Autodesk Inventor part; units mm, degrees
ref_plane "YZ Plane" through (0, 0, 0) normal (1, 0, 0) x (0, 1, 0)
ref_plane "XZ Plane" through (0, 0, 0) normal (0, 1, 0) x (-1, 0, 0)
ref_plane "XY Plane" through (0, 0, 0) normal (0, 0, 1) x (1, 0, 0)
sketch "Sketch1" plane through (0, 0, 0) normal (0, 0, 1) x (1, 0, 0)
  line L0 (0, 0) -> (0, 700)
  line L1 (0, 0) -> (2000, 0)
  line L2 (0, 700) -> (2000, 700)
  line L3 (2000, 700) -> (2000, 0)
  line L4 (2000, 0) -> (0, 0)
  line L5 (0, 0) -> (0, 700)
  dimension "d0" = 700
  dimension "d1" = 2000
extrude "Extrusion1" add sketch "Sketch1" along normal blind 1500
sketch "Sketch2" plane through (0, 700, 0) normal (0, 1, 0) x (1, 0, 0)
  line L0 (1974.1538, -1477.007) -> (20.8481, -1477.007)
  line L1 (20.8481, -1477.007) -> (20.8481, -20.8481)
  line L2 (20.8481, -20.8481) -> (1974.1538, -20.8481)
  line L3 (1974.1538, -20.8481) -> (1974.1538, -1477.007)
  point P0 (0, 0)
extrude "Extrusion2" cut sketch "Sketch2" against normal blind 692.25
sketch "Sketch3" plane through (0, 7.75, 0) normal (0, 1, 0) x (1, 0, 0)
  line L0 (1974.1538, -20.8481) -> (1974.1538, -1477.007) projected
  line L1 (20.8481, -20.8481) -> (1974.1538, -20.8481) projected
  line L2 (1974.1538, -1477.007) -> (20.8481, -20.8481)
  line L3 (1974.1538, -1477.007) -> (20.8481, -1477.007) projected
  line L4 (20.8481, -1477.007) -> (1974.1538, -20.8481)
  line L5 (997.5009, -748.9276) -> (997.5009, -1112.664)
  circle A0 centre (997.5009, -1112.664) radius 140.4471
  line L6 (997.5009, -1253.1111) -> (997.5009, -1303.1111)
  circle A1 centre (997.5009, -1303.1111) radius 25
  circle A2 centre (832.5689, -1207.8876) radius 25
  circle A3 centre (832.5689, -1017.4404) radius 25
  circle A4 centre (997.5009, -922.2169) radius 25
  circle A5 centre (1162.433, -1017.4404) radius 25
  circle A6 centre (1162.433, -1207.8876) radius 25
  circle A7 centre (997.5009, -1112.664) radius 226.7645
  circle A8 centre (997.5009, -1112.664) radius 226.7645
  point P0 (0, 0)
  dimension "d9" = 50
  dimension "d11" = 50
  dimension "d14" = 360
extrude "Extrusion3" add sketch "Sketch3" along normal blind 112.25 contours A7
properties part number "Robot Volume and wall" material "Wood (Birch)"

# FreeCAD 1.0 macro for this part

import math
import FreeCAD as App
import Part
import Sketcher
from FreeCAD import Vector
Q = App.Units.Quantity

doc = App.newDocument("Part")
params = doc.addObject("Spreadsheet::Sheet", "Params")
for row, (alias, value) in enumerate([
    ("sketch1_width", "2000 mm"),
    ("sketch1_height", "700 mm"),
    ("pad1_length", "1500 mm"),
    ("pocket1_length", "692.25 mm"),
    ("sketch3_diameter", "50 mm"),
    ("pad2_length", "112.25 mm"),
], start=1):
    params.set(f"A{row}", alias)
    params.set(f"B{row}", "=" + value)
    params.setAlias(f"B{row}", alias)

body = doc.addObject("PartDesign::Body", "Body")

# Sketch on XY plane
sketch1 = doc.addObject("Sketcher::SketchObject", "Sketch")
body.addObject(sketch1)
sketch1.AttachmentSupport = (doc.XY_Plane, [""])
sketch1.MapMode = "FlatFace"
sketch1.addGeometry([
    Part.LineSegment(Vector(0, 700, 0), Vector(0, 0, 0)),
    Part.LineSegment(Vector(0, 0, 0), Vector(2000, 0, 0)),
    Part.LineSegment(Vector(2000, 0, 0), Vector(2000, 700, 0)),
    Part.LineSegment(Vector(2000, 700, 0), Vector(0, 700, 0)),
], False)
sketch1.addConstraint([
    Sketcher.Constraint("Coincident", 0, 2, 1, 1),
    Sketcher.Constraint("Coincident", 1, 2, 2, 1),
    Sketcher.Constraint("Coincident", 2, 2, 3, 1),
    Sketcher.Constraint("Coincident", 3, 2, 0, 1),
    Sketcher.Constraint("Vertical", 0),
    Sketcher.Constraint("Horizontal", 1),
    Sketcher.Constraint("Vertical", 2),
    Sketcher.Constraint("Horizontal", 3),
    Sketcher.Constraint("Coincident", 0, 2, -1, 1),
    Sketcher.Constraint("DistanceX", 1, 1, 1, 2, Q("2000 mm")),
    Sketcher.Constraint("DistanceY", 0, 2, 0, 1, Q("700 mm")),
])
sketch1.setExpression("Constraints[9]", "Params.sketch1_width")
sketch1.setExpression("Constraints[10]", "Params.sketch1_height")
pad1 = doc.addObject("PartDesign::Pad", "Pad")
body.addObject(pad1)
pad1.Profile = sketch1
pad1.setExpression("Length", "Params.pad1_length")

# Sketch on XZ plane
sketch2 = doc.addObject("Sketcher::SketchObject", "Sketch001")
body.addObject(sketch2)
sketch2.AttachmentSupport = (doc.XZ_Plane, [""])
sketch2.MapMode = "FlatFace"
sketch2.AttachmentOffset = App.Placement(Vector(0, 0, -700), App.Rotation())
sketch2.addGeometry([
    Part.LineSegment(Vector(21, 1477, 0), Vector(1974, 1477, 0)),
    Part.LineSegment(Vector(1974, 1477, 0), Vector(1974, 21, 0)),
    Part.LineSegment(Vector(1974, 21, 0), Vector(21, 21, 0)),
    Part.LineSegment(Vector(21, 21, 0), Vector(21, 1477, 0)),
], False)
sketch2.addConstraint([
    Sketcher.Constraint("Coincident", 0, 2, 1, 1),
    Sketcher.Constraint("Coincident", 1, 2, 2, 1),
    Sketcher.Constraint("Coincident", 2, 2, 3, 1),
    Sketcher.Constraint("Coincident", 3, 2, 0, 1),
    Sketcher.Constraint("Horizontal", 0),
    Sketcher.Constraint("Vertical", 1),
    Sketcher.Constraint("Horizontal", 2),
    Sketcher.Constraint("Vertical", 3),
    Sketcher.Constraint("DistanceY", 1, 2, 1, 1, Q("1456.159 mm")),
    Sketcher.Constraint("DistanceX", 0, 1, 0, 2, Q("1953.3057 mm")),
    Sketcher.Constraint("DistanceY", -1, 1, 0, 2, Q("1477.007 mm")),
    Sketcher.Constraint("DistanceX", -1, 1, 2, 2, Q("20.848 mm")),
])
pocket1 = doc.addObject("PartDesign::Pocket", "Pocket")
body.addObject(pocket1)
pocket1.Profile = sketch2
pocket1.setExpression("Length", "Params.pocket1_length")
pocket1.Reversed = True

# Sketch on XZ plane
sketch3 = doc.addObject("Sketcher::SketchObject", "Sketch002")
body.addObject(sketch3)
sketch3.AttachmentSupport = (doc.XZ_Plane, [""])
sketch3.MapMode = "FlatFace"
sketch3.AttachmentOffset = App.Placement(Vector(0, 0, -7.75), App.Rotation())
sketch3.addGeometry([
    Part.Circle(Vector(998, 1113, 0), Vector(0, 0, 1), 227),  # 0
    Part.Circle(Vector(998, 1303, 0), Vector(0, 0, 1), 25),  # 1
    Part.Circle(Vector(833, 1208, 0), Vector(0, 0, 1), 25),  # 2
    Part.ArcOfCircle(Part.Circle(Vector(998, 1113, 0), Vector(0, 0, 1), 140), math.radians(90), math.radians(270)),  # 3
    Part.ArcOfCircle(Part.Circle(Vector(998, 1113, 0), Vector(0, 0, 1), 140), math.radians(-90), math.radians(90)),  # 4
    Part.Circle(Vector(833, 1017, 0), Vector(0, 0, 1), 25),  # 5
    Part.ArcOfCircle(Part.Circle(Vector(998, 922, 0), Vector(0, 0, 1), 25), math.radians(90), math.radians(270)),  # 6
    Part.ArcOfCircle(Part.Circle(Vector(998, 922, 0), Vector(0, 0, 1), 25), math.radians(-90), math.radians(90)),  # 7
    Part.Circle(Vector(1162, 1208, 0), Vector(0, 0, 1), 25),  # 8
    Part.Circle(Vector(1162, 1017, 0), Vector(0, 0, 1), 25),  # 9
], False)
sketch3.addConstraint([
    Sketcher.Constraint("Tangent", 3, 1, 4, 2),
    Sketcher.Constraint("Coincident", 4, 1, 3, 2),
    Sketcher.Constraint("Tangent", 6, 1, 7, 2),
    Sketcher.Constraint("Coincident", 7, 1, 6, 2),
    Sketcher.Constraint("Coincident", 3, 3, 0, 3),
    Sketcher.Constraint("Equal", 1, 2),
    Sketcher.Constraint("Equal", 2, 5),
    Sketcher.Constraint("Equal", 5, 6),
    Sketcher.Constraint("Equal", 7, 8),
    Sketcher.Constraint("Equal", 8, 9),
    Sketcher.Constraint("Horizontal", 2, 3, 8, 3),
    Sketcher.Constraint("Horizontal", 5, 3, 9, 3),
    Sketcher.Constraint("Vertical", 0, 3, 1, 3),
    Sketcher.Constraint("Vertical", 2, 3, 5, 3),
    Sketcher.Constraint("Vertical", 4, 3, 6, 3),
    Sketcher.Constraint("Vertical", 8, 3, 9, 3),
    Sketcher.Constraint("Vertical", 7, 3, 3, 1),
    Sketcher.Constraint("Vertical", 3, 1, 4, 1),
    Sketcher.Constraint("Vertical", 4, 1, 6, 1),
    Sketcher.Constraint("Vertical", 6, 1, 7, 1),
    Sketcher.Constraint("Diameter", 1, Q("50 mm")),
    Sketcher.Constraint("DistanceY", 3, 1, 1, 3, Q("50 mm")),
    Sketcher.Constraint("DistanceY", 6, 3, 4, 1, Q("50 mm")),
    Sketcher.Constraint("Diameter", 0, Q("453.529 mm")),
    Sketcher.Constraint("Radius", 3, Q("140.447 mm")),
    Sketcher.Constraint("DistanceX", -1, 1, 0, 3, Q("997.501 mm")),
    Sketcher.Constraint("DistanceY", -1, 1, 0, 3, Q("1112.664 mm")),
    Sketcher.Constraint("DistanceX", -1, 1, 2, 3, Q("832.569 mm")),
    Sketcher.Constraint("DistanceX", -1, 1, 8, 3, Q("1162.433 mm")),
    Sketcher.Constraint("DistanceY", -1, 1, 2, 3, Q("1207.8876 mm")),
    Sketcher.Constraint("DistanceY", -1, 1, 5, 3, Q("1017.4404 mm")),
])
sketch3.setExpression("Constraints[20]", "Params.sketch3_diameter")
pad2 = doc.addObject("PartDesign::Pad", "Pad001")
body.addObject(pad2)
pad2.Profile = sketch3
pad2.setExpression("Length", "Params.pad2_length")
pad2.Reversed = True

doc.recompute()
